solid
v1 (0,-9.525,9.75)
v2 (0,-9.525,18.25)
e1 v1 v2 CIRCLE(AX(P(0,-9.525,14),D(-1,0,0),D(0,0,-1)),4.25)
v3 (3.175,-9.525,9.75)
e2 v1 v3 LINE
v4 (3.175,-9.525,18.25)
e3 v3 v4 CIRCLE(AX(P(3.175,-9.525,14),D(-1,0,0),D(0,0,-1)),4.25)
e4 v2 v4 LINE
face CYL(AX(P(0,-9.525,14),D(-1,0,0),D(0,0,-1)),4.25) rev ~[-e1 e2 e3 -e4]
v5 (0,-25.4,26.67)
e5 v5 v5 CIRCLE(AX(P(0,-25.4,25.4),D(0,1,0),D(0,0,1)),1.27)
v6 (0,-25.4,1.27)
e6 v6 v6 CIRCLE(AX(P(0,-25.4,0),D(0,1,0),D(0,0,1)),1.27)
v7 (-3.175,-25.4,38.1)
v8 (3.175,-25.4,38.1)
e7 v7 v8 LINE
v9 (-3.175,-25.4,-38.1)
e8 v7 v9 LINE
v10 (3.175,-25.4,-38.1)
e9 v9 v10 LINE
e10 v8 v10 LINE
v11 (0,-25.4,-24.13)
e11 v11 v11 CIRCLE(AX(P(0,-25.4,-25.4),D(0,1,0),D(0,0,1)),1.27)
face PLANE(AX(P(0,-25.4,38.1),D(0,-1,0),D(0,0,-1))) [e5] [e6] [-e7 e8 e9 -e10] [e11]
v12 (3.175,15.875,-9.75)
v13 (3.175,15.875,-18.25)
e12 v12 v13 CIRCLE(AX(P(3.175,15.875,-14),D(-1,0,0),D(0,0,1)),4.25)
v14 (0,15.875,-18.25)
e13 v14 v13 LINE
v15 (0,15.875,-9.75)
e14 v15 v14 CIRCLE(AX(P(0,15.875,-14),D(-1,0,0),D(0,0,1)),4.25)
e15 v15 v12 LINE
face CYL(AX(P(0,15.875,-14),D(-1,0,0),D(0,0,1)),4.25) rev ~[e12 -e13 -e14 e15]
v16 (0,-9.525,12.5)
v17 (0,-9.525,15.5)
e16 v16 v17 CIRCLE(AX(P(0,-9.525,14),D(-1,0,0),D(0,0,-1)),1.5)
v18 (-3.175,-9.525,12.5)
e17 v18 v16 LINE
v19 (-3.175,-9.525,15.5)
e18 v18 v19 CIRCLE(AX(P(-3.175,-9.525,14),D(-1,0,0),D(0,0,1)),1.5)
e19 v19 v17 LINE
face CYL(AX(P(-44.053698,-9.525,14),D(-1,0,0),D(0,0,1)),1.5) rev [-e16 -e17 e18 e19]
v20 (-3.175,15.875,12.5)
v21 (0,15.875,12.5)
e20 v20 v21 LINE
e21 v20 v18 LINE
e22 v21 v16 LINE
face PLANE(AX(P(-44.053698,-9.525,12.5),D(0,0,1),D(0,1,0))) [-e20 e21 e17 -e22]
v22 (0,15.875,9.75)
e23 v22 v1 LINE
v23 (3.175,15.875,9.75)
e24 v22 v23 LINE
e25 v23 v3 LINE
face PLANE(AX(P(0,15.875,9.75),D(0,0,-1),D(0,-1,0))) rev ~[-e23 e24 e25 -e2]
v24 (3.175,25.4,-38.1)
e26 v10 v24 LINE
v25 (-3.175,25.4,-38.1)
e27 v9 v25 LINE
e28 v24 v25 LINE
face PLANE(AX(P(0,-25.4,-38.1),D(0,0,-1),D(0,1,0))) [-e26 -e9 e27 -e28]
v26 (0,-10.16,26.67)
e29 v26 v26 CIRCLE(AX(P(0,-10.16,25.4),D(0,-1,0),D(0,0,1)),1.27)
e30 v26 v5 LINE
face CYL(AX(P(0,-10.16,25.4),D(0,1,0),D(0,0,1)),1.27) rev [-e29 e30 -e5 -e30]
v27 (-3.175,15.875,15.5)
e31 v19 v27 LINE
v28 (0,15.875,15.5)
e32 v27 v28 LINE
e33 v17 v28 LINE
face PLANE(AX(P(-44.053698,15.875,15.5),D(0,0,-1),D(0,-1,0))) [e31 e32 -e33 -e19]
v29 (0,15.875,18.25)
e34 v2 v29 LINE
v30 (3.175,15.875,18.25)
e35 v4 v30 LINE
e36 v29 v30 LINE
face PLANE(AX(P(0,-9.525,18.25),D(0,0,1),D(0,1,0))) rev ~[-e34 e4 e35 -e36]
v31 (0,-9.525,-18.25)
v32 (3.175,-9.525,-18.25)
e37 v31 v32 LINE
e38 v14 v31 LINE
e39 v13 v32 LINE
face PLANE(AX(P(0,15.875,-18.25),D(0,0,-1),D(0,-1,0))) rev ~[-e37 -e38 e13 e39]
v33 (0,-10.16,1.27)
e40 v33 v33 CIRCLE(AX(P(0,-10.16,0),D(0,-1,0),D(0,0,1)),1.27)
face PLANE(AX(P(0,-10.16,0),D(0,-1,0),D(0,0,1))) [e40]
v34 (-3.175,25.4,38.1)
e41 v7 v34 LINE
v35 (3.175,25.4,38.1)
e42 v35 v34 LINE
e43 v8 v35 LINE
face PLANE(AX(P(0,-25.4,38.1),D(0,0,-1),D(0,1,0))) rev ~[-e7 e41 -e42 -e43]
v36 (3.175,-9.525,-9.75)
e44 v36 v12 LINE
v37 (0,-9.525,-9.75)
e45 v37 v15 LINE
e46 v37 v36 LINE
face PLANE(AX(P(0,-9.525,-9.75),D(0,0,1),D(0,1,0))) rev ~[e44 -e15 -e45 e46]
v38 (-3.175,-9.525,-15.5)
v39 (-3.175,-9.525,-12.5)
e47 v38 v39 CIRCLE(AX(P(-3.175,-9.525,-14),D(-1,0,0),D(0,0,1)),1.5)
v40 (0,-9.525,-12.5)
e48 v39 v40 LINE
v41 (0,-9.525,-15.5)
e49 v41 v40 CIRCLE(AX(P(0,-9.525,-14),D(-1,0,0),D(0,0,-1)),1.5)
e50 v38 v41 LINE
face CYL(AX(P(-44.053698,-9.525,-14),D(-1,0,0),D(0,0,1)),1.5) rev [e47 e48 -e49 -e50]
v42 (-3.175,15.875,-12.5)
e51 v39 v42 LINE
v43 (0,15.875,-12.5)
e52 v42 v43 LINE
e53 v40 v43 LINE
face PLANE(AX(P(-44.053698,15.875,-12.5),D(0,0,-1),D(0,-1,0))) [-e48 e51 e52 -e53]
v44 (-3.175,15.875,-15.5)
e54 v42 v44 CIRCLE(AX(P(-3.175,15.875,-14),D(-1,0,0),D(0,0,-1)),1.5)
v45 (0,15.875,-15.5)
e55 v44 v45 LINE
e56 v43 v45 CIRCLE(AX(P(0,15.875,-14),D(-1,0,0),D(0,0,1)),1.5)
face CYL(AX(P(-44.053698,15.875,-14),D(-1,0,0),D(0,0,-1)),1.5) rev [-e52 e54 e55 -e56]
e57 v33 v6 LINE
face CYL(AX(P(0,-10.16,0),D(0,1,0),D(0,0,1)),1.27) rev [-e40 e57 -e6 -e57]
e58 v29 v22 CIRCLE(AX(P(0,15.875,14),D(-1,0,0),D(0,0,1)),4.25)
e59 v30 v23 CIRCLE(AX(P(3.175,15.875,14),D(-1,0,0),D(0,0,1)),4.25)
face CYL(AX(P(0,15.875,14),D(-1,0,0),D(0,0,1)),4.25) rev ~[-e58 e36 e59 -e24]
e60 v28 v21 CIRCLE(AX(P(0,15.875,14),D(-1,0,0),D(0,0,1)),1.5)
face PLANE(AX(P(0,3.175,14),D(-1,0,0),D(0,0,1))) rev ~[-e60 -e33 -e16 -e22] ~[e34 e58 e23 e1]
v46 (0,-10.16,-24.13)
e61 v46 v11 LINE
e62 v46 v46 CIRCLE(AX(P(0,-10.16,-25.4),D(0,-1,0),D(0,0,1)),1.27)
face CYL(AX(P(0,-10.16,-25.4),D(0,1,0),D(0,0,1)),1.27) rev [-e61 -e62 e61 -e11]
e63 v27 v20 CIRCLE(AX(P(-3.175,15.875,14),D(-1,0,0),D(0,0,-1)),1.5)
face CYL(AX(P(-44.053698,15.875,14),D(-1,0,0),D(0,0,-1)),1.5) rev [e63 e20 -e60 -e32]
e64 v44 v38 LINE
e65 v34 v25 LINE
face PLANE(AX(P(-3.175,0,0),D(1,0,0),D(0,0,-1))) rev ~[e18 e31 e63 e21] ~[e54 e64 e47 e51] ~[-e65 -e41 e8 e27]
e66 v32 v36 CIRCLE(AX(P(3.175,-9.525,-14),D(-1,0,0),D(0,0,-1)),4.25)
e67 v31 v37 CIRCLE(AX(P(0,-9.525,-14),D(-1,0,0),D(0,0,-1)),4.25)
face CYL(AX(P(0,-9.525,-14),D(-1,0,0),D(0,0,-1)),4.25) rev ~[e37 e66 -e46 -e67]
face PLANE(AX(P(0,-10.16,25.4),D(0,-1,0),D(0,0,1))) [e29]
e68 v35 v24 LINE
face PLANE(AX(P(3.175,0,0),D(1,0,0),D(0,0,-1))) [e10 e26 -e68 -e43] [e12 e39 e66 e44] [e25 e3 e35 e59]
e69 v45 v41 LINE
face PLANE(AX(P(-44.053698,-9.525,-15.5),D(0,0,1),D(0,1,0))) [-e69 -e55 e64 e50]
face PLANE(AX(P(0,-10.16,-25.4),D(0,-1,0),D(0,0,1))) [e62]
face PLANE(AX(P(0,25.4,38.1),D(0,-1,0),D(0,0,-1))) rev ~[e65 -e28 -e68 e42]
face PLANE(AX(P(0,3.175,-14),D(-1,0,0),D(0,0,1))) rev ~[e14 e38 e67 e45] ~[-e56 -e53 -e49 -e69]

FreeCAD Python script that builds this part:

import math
import FreeCAD as App
import Part
import Sketcher

V = App.Vector
Q = App.Units.Quantity


def add_polygon(sketch, points):
    """Adds a closed chain of lines whose ends are joined by coincident constraints."""
    first, n = sketch.GeometryCount, len(points)
    for a, b in zip(points, points[1:] + points[:1]):
        sketch.addGeometry(Part.LineSegment(App.Vector(*a, 0), App.Vector(*b, 0)), False)
    for i in range(n):
        sketch.addConstraint(Sketcher.Constraint("Coincident", first + i, 2, first + (i + 1) % n, 1))

doc = App.newDocument("Part")
body = doc.addObject("PartDesign::Body", "Body")

# Sketch on YZ plane
sketch1 = body.newObject("Sketcher::SketchObject", "Sketch")
sketch1.AttachmentSupport = (doc.getObject("YZ_Plane"), [""])
sketch1.MapMode = "FlatFace"
add_polygon(sketch1, [(25.4, 38.1), (-25.4, 38.1), (-25.4, -38.1), (25.4, -38.1)])  # lines 0-3
sketch1.addConstraint([
    Sketcher.Constraint("Horizontal", 0),
    Sketcher.Constraint("Vertical", 1),
    Sketcher.Constraint("Horizontal", 2),
    Sketcher.Constraint("Vertical", 3),
    Sketcher.Constraint("Symmetric", 0, 2, 2, 2, -1, 1),
    Sketcher.Constraint("DistanceX", 0, 2, 0, 1, Q("2 in")),
    Sketcher.Constraint("DistanceY", 1, 2, 1, 1, Q("3 in")),
])
pad1 = body.newObject("PartDesign::Pad", "Pad")
pad1.Profile = sketch1
pad1.Length = Q("0.25 in")
pad1.Midplane = True

# Sketch on YZ plane
sketch2 = body.newObject("Sketcher::SketchObject", "Sketch001")
sketch2.AttachmentSupport = (doc.getObject("YZ_Plane"), [""])
sketch2.MapMode = "FlatFace"
sketch2.AttachmentOffset = App.Placement(V(0, 0, 0.125 * 25.4), App.Rotation())
sketch2.addGeometry([
    Part.LineSegment(V(-9.525, 12.5, 0), V(15.875, 12.5, 0)),  # 0
    Part.ArcOfCircle(Part.Circle(V(15.875, 14, 0), V(0, 0, 1), 1.5), math.radians(-90), math.radians(90)),  # 1
    Part.LineSegment(V(15.875, 15.5, 0), V(-9.525, 15.5, 0)),  # 2
    Part.ArcOfCircle(Part.Circle(V(-9.525, 14, 0), V(0, 0, 1), 1.5), math.radians(90), math.radians(270)),  # 3
    Part.LineSegment(V(-9.525, -15.5, 0), V(15.875, -15.5, 0)),  # 4
    Part.ArcOfCircle(Part.Circle(V(15.875, -14, 0), V(0, 0, 1), 1.5), math.radians(-90), math.radians(90)),  # 5
    Part.LineSegment(V(15.875, -12.5, 0), V(-9.525, -12.5, 0)),  # 6
    Part.ArcOfCircle(Part.Circle(V(-9.525, -14, 0), V(0, 0, 1), 1.5), math.radians(90), math.radians(270)),  # 7
], False)
sketch2.addConstraint([
    Sketcher.Constraint("Tangent", 0, 2, 1, 1),
    Sketcher.Constraint("Tangent", 1, 2, 2, 1),
    Sketcher.Constraint("Tangent", 2, 2, 3, 1),
    Sketcher.Constraint("Tangent", 3, 2, 0, 1),
    Sketcher.Constraint("Tangent", 4, 2, 5, 1),
    Sketcher.Constraint("Tangent", 5, 2, 6, 1),
    Sketcher.Constraint("Tangent", 6, 2, 7, 1),
    Sketcher.Constraint("Tangent", 7, 2, 4, 1),
    Sketcher.Constraint("Horizontal", 0),
    Sketcher.Constraint("Horizontal", 2),
    Sketcher.Constraint("Horizontal", 4),
    Sketcher.Constraint("Horizontal", 6),
    Sketcher.Constraint("Equal", 3, 5),
    Sketcher.Constraint("Symmetric", 1, 3, 5, 3, -1),
    Sketcher.Constraint("Vertical", 3, 3, 7, 3),
    Sketcher.Constraint("DistanceX", 0, 1, 0, 2, Q("1 in")),
    Sketcher.Constraint("Radius", 1, Q("1.5 mm")),
    Sketcher.Constraint("DistanceX", -1, 1, 1, 3, Q("0.625 in")),
    Sketcher.Constraint("DistanceY", -1, 1, 1, 3, Q("14 mm")),
])
pocket1 = body.newObject("PartDesign::Pocket", "Pocket")
pocket1.Profile = sketch2
pocket1.Type = "ThroughAll"
pocket1.Midplane = True

# Sketch on YZ plane
sketch3 = body.newObject("Sketcher::SketchObject", "Sketch002")
sketch3.AttachmentSupport = (doc.getObject("YZ_Plane"), [""])
sketch3.MapMode = "FlatFace"
sketch3.addGeometry([
    Part.LineSegment(V(15.875, 18.25, 0), V(-9.525, 18.25, 0)),  # 0
    Part.ArcOfCircle(Part.Circle(V(-9.525, 14, 0), V(0, 0, 1), 4.25), math.radians(90), math.radians(270)),  # 1
    Part.LineSegment(V(-9.525, 9.75, 0), V(15.875, 9.75, 0)),  # 2
    Part.ArcOfCircle(Part.Circle(V(15.875, 14, 0), V(0, 0, 1), 4.25), math.radians(-90), math.radians(90)),  # 3
    Part.LineSegment(V(-9.525, 15.5, 0), V(15.875, 15.5, 0)),  # 4
    Part.ArcOfCircle(Part.Circle(V(15.875, 14, 0), V(0, 0, 1), 1.5), math.radians(-90), math.radians(90)),  # 5
    Part.LineSegment(V(15.875, 12.5, 0), V(-9.525, 12.5, 0)),  # 6
    Part.ArcOfCircle(Part.Circle(V(-9.525, 14, 0), V(0, 0, 1), 1.5), math.radians(90), math.radians(270)),  # 7
    Part.LineSegment(V(15.875, -9.75, 0), V(-9.525, -9.75, 0)),  # 8
    Part.ArcOfCircle(Part.Circle(V(-9.525, -14, 0), V(0, 0, 1), 4.25), math.radians(90), math.radians(270)),  # 9
    Part.LineSegment(V(-9.525, -18.25, 0), V(15.875, -18.25, 0)),  # 10
    Part.ArcOfCircle(Part.Circle(V(15.875, -14, 0), V(0, 0, 1), 4.25), math.radians(-90), math.radians(90)),  # 11
    Part.LineSegment(V(-9.525, -12.5, 0), V(15.875, -12.5, 0)),  # 12
    Part.ArcOfCircle(Part.Circle(V(15.875, -14, 0), V(0, 0, 1), 1.5), math.radians(-90), math.radians(90)),  # 13
    Part.LineSegment(V(15.875, -15.5, 0), V(-9.525, -15.5, 0)),  # 14
    Part.ArcOfCircle(Part.Circle(V(-9.525, -14, 0), V(0, 0, 1), 1.5), math.radians(90), math.radians(270)),  # 15
], False)
sketch3.addConstraint([
    Sketcher.Constraint("Tangent", 0, 2, 1, 1),
    Sketcher.Constraint("Tangent", 1, 2, 2, 1),
    Sketcher.Constraint("Tangent", 2, 2, 3, 1),
    Sketcher.Constraint("Tangent", 3, 2, 0, 1),
    Sketcher.Constraint("Tangent", 4, 2, 5, 2),
    Sketcher.Constraint("Tangent", 5, 1, 6, 1),
    Sketcher.Constraint("Tangent", 6, 2, 7, 2),
    Sketcher.Constraint("Tangent", 7, 1, 4, 1),
    Sketcher.Constraint("Tangent", 8, 2, 9, 1),
    Sketcher.Constraint("Tangent", 9, 2, 10, 1),
    Sketcher.Constraint("Tangent", 10, 2, 11, 1),
    Sketcher.Constraint("Tangent", 11, 2, 8, 1),
    Sketcher.Constraint("Tangent", 12, 2, 13, 2),
    Sketcher.Constraint("Tangent", 13, 1, 14, 1),
    Sketcher.Constraint("Tangent", 14, 2, 15, 2),
    Sketcher.Constraint("Tangent", 15, 1, 12, 1),
    Sketcher.Constraint("Horizontal", 0),
    Sketcher.Constraint("Horizontal", 2),
    Sketcher.Constraint("Horizontal", 4),
    Sketcher.Constraint("Horizontal", 6),
    Sketcher.Constraint("Horizontal", 8),
    Sketcher.Constraint("Horizontal", 10),
    Sketcher.Constraint("Horizontal", 12),
    Sketcher.Constraint("Horizontal", 14),
    Sketcher.Constraint("Coincident", 5, 3, 3, 3),
    Sketcher.Constraint("Coincident", 13, 3, 11, 3),
    Sketcher.Constraint("Equal", 3, 9),
    Sketcher.Constraint("Equal", 7, 13),
    Sketcher.Constraint("Symmetric", 1, 3, 9, 3, -1),
    Sketcher.Constraint("Vertical", 7, 3, 9, 3),
    Sketcher.Constraint("Vertical", 5, 3, 11, 3),
    Sketcher.Constraint("Vertical", 7, 3, 15, 3),
    Sketcher.Constraint("DistanceX", 0, 2, 0, 1, Q("1 in")),
    Sketcher.Constraint("Radius", 1, Q("4.25 mm")),
    Sketcher.Constraint("Radius", 5, Q("1.5 mm")),
    Sketcher.Constraint("DistanceX", 1, 3, -1, 1, Q("0.375 in")),
    Sketcher.Constraint("DistanceY", -1, 1, 1, 3, Q("14 mm")),
])
pocket2 = body.newObject("PartDesign::Pocket", "Pocket001")
pocket2.Profile = sketch3
pocket2.Length = Q("0.125 in")
pocket2.Reversed = True

# Sketch on XZ plane
sketch4 = body.newObject("Sketcher::SketchObject", "Sketch003")
sketch4.AttachmentSupport = (doc.getObject("XZ_Plane"), [""])
sketch4.MapMode = "FlatFace"
sketch4.AttachmentOffset = App.Placement(V(0, 0, 1 * 25.4), App.Rotation())
sketch4.addGeometry([
    Part.Circle(V(0, 25.4, 0), V(0, 0, 1), 1.27),
    Part.Circle(V(0, 0, 0), V(0, 0, 1), 1.27),
    Part.Circle(V(0, -25.4, 0), V(0, 0, 1), 1.27),
], False)
sketch4.addConstraint([
    Sketcher.Constraint("Coincident", 1, 3, -1, 1),
    Sketcher.Constraint("Equal", 0, 1),
    Sketcher.Constraint("Equal", 1, 2),
    Sketcher.Constraint("Symmetric", 0, 3, 2, 3, -1, 1),
    Sketcher.Constraint("PointOnObject", 0, 3, -2),
    Sketcher.Constraint("Diameter", 0, Q("0.1 in")),
    Sketcher.Constraint("DistanceY", -1, 1, 0, 3, Q("1 in")),
])
pocket3 = body.newObject("PartDesign::Pocket", "Pocket002")
pocket3.Profile = sketch4
pocket3.Type = "TwoLengths"
pocket3.Length = 64.579325
pocket3.Length2 = Q("0.6 in")
pocket3.Reversed = True

doc.recompute()
